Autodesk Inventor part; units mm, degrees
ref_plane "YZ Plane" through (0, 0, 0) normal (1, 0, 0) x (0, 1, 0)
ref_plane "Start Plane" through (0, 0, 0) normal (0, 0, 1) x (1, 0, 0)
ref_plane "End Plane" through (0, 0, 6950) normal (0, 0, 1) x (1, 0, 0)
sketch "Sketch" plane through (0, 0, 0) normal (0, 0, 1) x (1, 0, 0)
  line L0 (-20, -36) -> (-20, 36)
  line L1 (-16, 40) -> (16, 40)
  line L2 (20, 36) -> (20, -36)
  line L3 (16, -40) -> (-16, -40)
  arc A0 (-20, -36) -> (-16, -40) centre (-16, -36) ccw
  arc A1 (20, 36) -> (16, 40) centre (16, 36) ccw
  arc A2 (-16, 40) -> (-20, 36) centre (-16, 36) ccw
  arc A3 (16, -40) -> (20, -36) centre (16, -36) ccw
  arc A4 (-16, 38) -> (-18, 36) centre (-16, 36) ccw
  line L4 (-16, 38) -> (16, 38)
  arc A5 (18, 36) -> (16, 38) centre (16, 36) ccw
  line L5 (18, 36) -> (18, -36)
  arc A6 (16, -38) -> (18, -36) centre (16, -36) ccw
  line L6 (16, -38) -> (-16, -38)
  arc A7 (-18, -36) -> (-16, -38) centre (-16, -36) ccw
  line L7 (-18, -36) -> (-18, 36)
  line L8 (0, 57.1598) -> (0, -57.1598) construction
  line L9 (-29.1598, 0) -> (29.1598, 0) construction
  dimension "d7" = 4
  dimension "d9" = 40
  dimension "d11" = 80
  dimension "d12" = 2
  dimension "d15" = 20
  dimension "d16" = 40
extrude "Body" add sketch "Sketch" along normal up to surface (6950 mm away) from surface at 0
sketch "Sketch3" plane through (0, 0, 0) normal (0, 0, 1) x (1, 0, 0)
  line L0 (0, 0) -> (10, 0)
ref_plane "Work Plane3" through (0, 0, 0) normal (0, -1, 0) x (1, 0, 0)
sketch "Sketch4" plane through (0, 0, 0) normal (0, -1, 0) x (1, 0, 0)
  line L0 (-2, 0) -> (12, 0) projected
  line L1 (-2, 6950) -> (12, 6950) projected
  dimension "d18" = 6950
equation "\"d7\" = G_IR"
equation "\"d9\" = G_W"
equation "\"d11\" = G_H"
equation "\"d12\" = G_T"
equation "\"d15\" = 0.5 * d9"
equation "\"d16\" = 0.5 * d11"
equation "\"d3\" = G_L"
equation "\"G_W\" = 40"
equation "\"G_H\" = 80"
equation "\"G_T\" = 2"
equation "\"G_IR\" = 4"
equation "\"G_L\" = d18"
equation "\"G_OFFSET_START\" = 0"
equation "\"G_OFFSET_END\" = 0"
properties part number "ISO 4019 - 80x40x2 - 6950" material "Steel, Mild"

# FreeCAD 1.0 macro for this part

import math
import FreeCAD as App
import Part
import Sketcher

doc = App.newDocument("Part")
body = doc.addObject("PartDesign::Body", "Body")

sketch1 = body.newObject("Sketcher::SketchObject", "Sketch")
sketch1.AttachmentSupport = (doc.getObject("XY_Plane"), [""])
sketch1.MapMode = "FlatFace"
sketch1.addGeometry([
    Part.LineSegment(App.Vector(-20, 36, 0), App.Vector(-20, -36, 0)),
    Part.ArcOfCircle(Part.Circle(App.Vector(-16, -36, 0), App.Vector(0, 0, 1), 4), math.radians(180), math.radians(270)),
    Part.LineSegment(App.Vector(-16, -40, 0), App.Vector(16, -40, 0)),
    Part.ArcOfCircle(Part.Circle(App.Vector(16, -36, 0), App.Vector(0, 0, 1), 4), math.radians(-90), math.radians(0)),
    Part.LineSegment(App.Vector(20, -36, 0), App.Vector(20, 36, 0)),
    Part.ArcOfCircle(Part.Circle(App.Vector(16, 36, 0), App.Vector(0, 0, 1), 4), math.radians(0), math.radians(90)),
    Part.LineSegment(App.Vector(16, 40, 0), App.Vector(-16, 40, 0)),
    Part.ArcOfCircle(Part.Circle(App.Vector(-16, 36, 0), App.Vector(0, 0, 1), 4), math.radians(90), math.radians(180)),
    Part.ArcOfCircle(Part.Circle(App.Vector(-16, 36, 0), App.Vector(0, 0, 1), 2), math.radians(90), math.radians(180)),
    Part.LineSegment(App.Vector(-16, 38, 0), App.Vector(16, 38, 0)),
    Part.ArcOfCircle(Part.Circle(App.Vector(16, 36, 0), App.Vector(0, 0, 1), 2), math.radians(0), math.radians(90)),
    Part.LineSegment(App.Vector(18, 36, 0), App.Vector(18, -36, 0)),
    Part.ArcOfCircle(Part.Circle(App.Vector(16, -36, 0), App.Vector(0, 0, 1), 2), math.radians(-90), math.radians(0)),
    Part.LineSegment(App.Vector(16, -38, 0), App.Vector(-16, -38, 0)),
    Part.ArcOfCircle(Part.Circle(App.Vector(-16, -36, 0), App.Vector(0, 0, 1), 2), math.radians(180), math.radians(270)),
    Part.LineSegment(App.Vector(-18, -36, 0), App.Vector(-18, 36, 0)),
], False)
sketch1.addConstraint([
    Sketcher.Constraint("Tangent", 0, 2, 1, 1),
    Sketcher.Constraint("Tangent", 1, 2, 2, 1),
    Sketcher.Constraint("Tangent", 2, 2, 3, 1),
    Sketcher.Constraint("Tangent", 3, 2, 4, 1),
    Sketcher.Constraint("Tangent", 4, 2, 5, 1),
    Sketcher.Constraint("Tangent", 5, 2, 6, 1),
    Sketcher.Constraint("Tangent", 6, 2, 7, 1),
    Sketcher.Constraint("Tangent", 7, 2, 0, 1),
    Sketcher.Constraint("Tangent", 8, 1, 9, 1),
    Sketcher.Constraint("Tangent", 9, 2, 10, 2),
    Sketcher.Constraint("Tangent", 10, 1, 11, 1),
    Sketcher.Constraint("Tangent", 11, 2, 12, 2),
    Sketcher.Constraint("Tangent", 12, 1, 13, 1),
    Sketcher.Constraint("Tangent", 13, 2, 14, 2),
    Sketcher.Constraint("Tangent", 14, 1, 15, 1),
    Sketcher.Constraint("Tangent", 15, 2, 8, 2),
    Sketcher.Constraint("Vertical", 0),
    Sketcher.Constraint("Horizontal", 2),
    Sketcher.Constraint("Vertical", 4),
    Sketcher.Constraint("Horizontal", 6),
    Sketcher.Constraint("Horizontal", 9),
    Sketcher.Constraint("Vertical", 11),
    Sketcher.Constraint("Horizontal", 13),
    Sketcher.Constraint("Vertical", 15),
    Sketcher.Constraint("Coincident", 8, 3, 7, 3),
    Sketcher.Constraint("Coincident", 10, 3, 5, 3),
    Sketcher.Constraint("Coincident", 12, 3, 3, 3),
    Sketcher.Constraint("Equal", 1, 3),
    Sketcher.Constraint("Equal", 3, 5),
    Sketcher.Constraint("Equal", 5, 7),
    Sketcher.Constraint("Equal", 12, 14),
    Sketcher.Constraint("Symmetric", 1, 3, 5, 3, -1, 1),
    Sketcher.Constraint("Radius", 1, 4.0),
    Sketcher.Constraint("Radius", 8, 2.0),
    Sketcher.Constraint("DistanceX", 0, 2, -1, 1, 20.0),
    Sketcher.Constraint("DistanceY", 1, 2, -1, 1, 40.0),
])
pad1 = body.newObject("PartDesign::Pad", "Pad")
pad1.Profile = sketch1
pad1.Length = 6950

doc.recompute()
